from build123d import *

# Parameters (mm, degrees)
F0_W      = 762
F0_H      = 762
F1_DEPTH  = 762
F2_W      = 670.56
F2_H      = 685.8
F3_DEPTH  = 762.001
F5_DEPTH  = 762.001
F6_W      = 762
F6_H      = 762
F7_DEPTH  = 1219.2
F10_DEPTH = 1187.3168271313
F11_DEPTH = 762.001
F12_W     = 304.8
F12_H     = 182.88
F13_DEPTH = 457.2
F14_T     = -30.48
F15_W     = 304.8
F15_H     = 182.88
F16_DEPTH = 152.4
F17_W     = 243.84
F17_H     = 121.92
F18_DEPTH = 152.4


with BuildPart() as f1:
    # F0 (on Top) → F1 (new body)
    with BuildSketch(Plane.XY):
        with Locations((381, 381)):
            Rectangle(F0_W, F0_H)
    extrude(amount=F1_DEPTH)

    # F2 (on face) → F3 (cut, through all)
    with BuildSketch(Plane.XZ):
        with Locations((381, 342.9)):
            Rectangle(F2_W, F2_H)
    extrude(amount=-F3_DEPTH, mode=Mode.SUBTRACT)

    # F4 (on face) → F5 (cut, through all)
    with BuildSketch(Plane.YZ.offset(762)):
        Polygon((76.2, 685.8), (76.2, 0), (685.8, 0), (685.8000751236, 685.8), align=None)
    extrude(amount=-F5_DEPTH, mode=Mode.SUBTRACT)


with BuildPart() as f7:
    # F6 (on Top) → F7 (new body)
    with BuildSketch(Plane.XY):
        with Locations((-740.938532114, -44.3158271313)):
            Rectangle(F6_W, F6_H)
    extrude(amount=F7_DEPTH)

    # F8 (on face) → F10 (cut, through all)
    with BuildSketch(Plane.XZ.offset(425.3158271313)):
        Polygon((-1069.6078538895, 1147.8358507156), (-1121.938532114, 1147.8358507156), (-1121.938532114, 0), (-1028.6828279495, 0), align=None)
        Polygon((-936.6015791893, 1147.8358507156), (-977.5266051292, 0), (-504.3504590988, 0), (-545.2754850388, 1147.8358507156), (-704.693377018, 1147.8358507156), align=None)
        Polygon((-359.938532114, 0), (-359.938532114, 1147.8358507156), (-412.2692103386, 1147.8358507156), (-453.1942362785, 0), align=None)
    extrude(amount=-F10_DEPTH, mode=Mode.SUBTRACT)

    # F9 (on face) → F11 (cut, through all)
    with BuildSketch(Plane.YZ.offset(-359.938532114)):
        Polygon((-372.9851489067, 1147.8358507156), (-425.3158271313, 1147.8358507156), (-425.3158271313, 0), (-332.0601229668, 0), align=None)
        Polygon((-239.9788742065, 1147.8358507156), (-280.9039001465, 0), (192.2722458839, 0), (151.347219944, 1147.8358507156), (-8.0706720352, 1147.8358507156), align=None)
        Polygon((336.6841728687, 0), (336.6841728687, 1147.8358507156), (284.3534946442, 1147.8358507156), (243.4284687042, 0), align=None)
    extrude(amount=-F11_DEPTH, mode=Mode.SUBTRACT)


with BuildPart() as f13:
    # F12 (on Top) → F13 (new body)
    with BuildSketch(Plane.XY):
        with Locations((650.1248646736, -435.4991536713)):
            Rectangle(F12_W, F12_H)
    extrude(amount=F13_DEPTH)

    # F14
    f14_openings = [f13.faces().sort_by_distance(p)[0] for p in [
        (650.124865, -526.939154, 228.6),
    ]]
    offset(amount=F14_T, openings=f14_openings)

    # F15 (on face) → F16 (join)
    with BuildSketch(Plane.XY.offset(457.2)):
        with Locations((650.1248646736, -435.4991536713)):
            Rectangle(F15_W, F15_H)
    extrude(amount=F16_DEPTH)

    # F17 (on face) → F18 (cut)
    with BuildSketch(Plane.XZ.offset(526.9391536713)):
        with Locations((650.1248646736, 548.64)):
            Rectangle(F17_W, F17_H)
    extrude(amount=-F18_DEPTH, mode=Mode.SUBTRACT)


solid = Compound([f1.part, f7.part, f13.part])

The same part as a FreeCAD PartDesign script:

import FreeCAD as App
import Part
import Sketcher
from FreeCAD import Vector
Q = App.Units.Quantity


def faces_at(feature, points):
    """Names of the faces that lie closest to the given points."""
    faces = feature.Shape.Faces
    near = lambda p: min(range(len(faces)), key=lambda i: faces[i].distToShape(Part.Vertex(*p))[0])
    return sorted({f"Face{near(p) + 1}" for p in points})

doc = App.newDocument("Part")
body = doc.addObject("PartDesign::Body", "Body")

# Sketch on XY plane
sketch1 = doc.addObject("Sketcher::SketchObject", "Sketch")
body.addObject(sketch1)
sketch1.AttachmentSupport = (doc.XY_Plane, [""])
sketch1.MapMode = "FlatFace"
sketch1.addGeometry(Part.LineSegment(Vector(0, 762, 0), Vector(0, 0, 0)), False)
sketch1.addGeometry(Part.LineSegment(Vector(0, 0, 0), Vector(762, 0, 0)), False)
sketch1.addGeometry(Part.LineSegment(Vector(762, 0, 0), Vector(762, 762, 0)), False)
sketch1.addGeometry(Part.LineSegment(Vector(762, 762, 0), Vector(0, 762, 0)), False)
sketch1.addConstraint(Sketcher.Constraint("Coincident", 0, 2, 1, 1))
sketch1.addConstraint(Sketcher.Constraint("Coincident", 1, 2, 2, 1))
sketch1.addConstraint(Sketcher.Constraint("Coincident", 2, 2, 3, 1))
sketch1.addConstraint(Sketcher.Constraint("Coincident", 3, 2, 0, 1))
sketch1.addConstraint(Sketcher.Constraint("Vertical", 0))
sketch1.addConstraint(Sketcher.Constraint("Horizontal", 1))
sketch1.addConstraint(Sketcher.Constraint("Vertical", 2))
sketch1.addConstraint(Sketcher.Constraint("Horizontal", 3))
sketch1.addConstraint(Sketcher.Constraint("Coincident", 0, 2, -1, 1))
sketch1.addConstraint(Sketcher.Constraint("Equal", 3, 0))
sketch1.addConstraint(Sketcher.Constraint("DistanceX", 1, 1, 1, 2, Q("30 in")))
pad1 = doc.addObject("PartDesign::Pad", "Pad")
body.addObject(pad1)
pad1.Profile = sketch1
pad1.Length = Q("30 in")

# Sketch on XZ plane
sketch2 = doc.addObject("Sketcher::SketchObject", "Sketch001")
body.addObject(sketch2)
sketch2.AttachmentSupport = (doc.XZ_Plane, [""])
sketch2.MapMode = "FlatFace"
sketch2.addGeometry(Part.LineSegment(Vector(46, 686, 0), Vector(46, 0, 0)), False)
sketch2.addGeometry(Part.LineSegment(Vector(46, 0, 0), Vector(716, 0, 0)), False)
sketch2.addGeometry(Part.LineSegment(Vector(716, 0, 0), Vector(716, 686, 0)), False)
sketch2.addGeometry(Part.LineSegment(Vector(716, 686, 0), Vector(46, 686, 0)), False)
sketch2.addConstraint(Sketcher.Constraint("Coincident", 0, 2, 1, 1))
sketch2.addConstraint(Sketcher.Constraint("Coincident", 1, 2, 2, 1))
sketch2.addConstraint(Sketcher.Constraint("Coincident", 2, 2, 3, 1))
sketch2.addConstraint(Sketcher.Constraint("Coincident", 3, 2, 0, 1))
sketch2.addConstraint(Sketcher.Constraint("Vertical", 0))
sketch2.addConstraint(Sketcher.Constraint("Horizontal", 1))
sketch2.addConstraint(Sketcher.Constraint("Vertical", 2))
sketch2.addConstraint(Sketcher.Constraint("Horizontal", 3))
sketch2.addConstraint(Sketcher.Constraint("PointOnObject", 0, 2, -1))
sketch2.addConstraint(Sketcher.Constraint("DistanceY", 0, 2, 0, 1, Q("27 in")))
sketch2.addConstraint(Sketcher.Constraint("DistanceX", 1, 1, 1, 2, Q("26.4 in")))
sketch2.addConstraint(Sketcher.Constraint("DistanceX", -1, 1, 0, 2, Q("1.8 in")))
pocket1 = doc.addObject("PartDesign::Pocket", "Pocket")
body.addObject(pocket1)
pocket1.Profile = sketch2
pocket1.Type = "ThroughAll"

# Sketch on YZ plane
sketch3 = doc.addObject("Sketcher::SketchObject", "Sketch002")
body.addObject(sketch3)
sketch3.AttachmentSupport = (doc.YZ_Plane, [""])
sketch3.MapMode = "FlatFace"
sketch3.AttachmentOffset = App.Placement(Vector(0, 0, 30 * 25.4), App.Rotation())
sketch3.addGeometry(Part.LineSegment(Vector(76, 686, 0), Vector(76, 0, 0)), False)
sketch3.addGeometry(Part.LineSegment(Vector(76, 0, 0), Vector(686, 0, 0)), False)
sketch3.addGeometry(Part.LineSegment(Vector(686, 0, 0), Vector(686, 686, 0)), False)
sketch3.addGeometry(Part.LineSegment(Vector(686, 686, 0), Vector(76, 686, 0)), False)
sketch3.addConstraint(Sketcher.Constraint("Coincident", 0, 2, 1, 1))
sketch3.addConstraint(Sketcher.Constraint("Coincident", 1, 2, 2, 1))
sketch3.addConstraint(Sketcher.Constraint("Coincident", 2, 2, 3, 1))
sketch3.addConstraint(Sketcher.Constraint("Coincident", 3, 2, 0, 1))
sketch3.addConstraint(Sketcher.Constraint("Vertical", 0))
sketch3.addConstraint(Sketcher.Constraint("Horizontal", 1))
sketch3.addConstraint(Sketcher.Constraint("Horizontal", 3))
sketch3.addConstraint(Sketcher.Constraint("PointOnObject", 0, 2, -1))
sketch3.addConstraint(Sketcher.Constraint("DistanceX", 1, 1, 1, 2, Q("24 in")))
sketch3.addConstraint(Sketcher.Constraint("DistanceY", 0, 2, 0, 1, Q("27 in")))
sketch3.addConstraint(Sketcher.Constraint("DistanceX", -1, 1, 0, 2, Q("3 in")))
sketch3.addConstraint(Sketcher.Constraint("Angle", 2, Q("89.999994 deg")))
pocket2 = doc.addObject("PartDesign::Pocket", "Pocket001")
body.addObject(pocket2)
pocket2.Profile = sketch3
pocket2.Type = "ThroughAll"
body2 = doc.addObject("PartDesign::Body", "Body001")

# Sketch on XY plane
sketch4 = doc.addObject("Sketcher::SketchObject", "Sketch003")
body2.addObject(sketch4)
sketch4.AttachmentSupport = (doc.getObject("XY_Plane001"), [""])
sketch4.MapMode = "FlatFace"
sketch4.addGeometry(Part.LineSegment(Vector(-1122, 337, 0), Vector(-1122, -425, 0)), False)
sketch4.addGeometry(Part.LineSegment(Vector(-1122, -425, 0), Vector(-360, -425, 0)), False)
sketch4.addGeometry(Part.LineSegment(Vector(-360, -425, 0), Vector(-360, 337, 0)), False)
sketch4.addGeometry(Part.LineSegment(Vector(-360, 337, 0), Vector(-1122, 337, 0)), False)
sketch4.addConstraint(Sketcher.Constraint("Coincident", 0, 2, 1, 1))
sketch4.addConstraint(Sketcher.Constraint("Coincident", 1, 2, 2, 1))
sketch4.addConstraint(Sketcher.Constraint("Coincident", 2, 2, 3, 1))
sketch4.addConstraint(Sketcher.Constraint("Coincident", 3, 2, 0, 1))
sketch4.addConstraint(Sketcher.Constraint("Vertical", 0))
sketch4.addConstraint(Sketcher.Constraint("Horizontal", 1))
sketch4.addConstraint(Sketcher.Constraint("Vertical", 2))
sketch4.addConstraint(Sketcher.Constraint("Horizontal", 3))
sketch4.addConstraint(Sketcher.Constraint("Equal", 3, 0))
sketch4.addConstraint(Sketcher.Constraint("DistanceX", 1, 1, 1, 2, Q("30 in")))
sketch4.addConstraint(Sketcher.Constraint("DistanceX", 0, 2, -1, 1, 1121.938532))
sketch4.addConstraint(Sketcher.Constraint("DistanceY", 0, 2, -1, 1, 425.315827))
pad2 = doc.addObject("PartDesign::Pad", "Pad001")
body2.addObject(pad2)
pad2.Profile = sketch4
pad2.Length = Q("48 in")

# Sketch on XZ plane
sketch5 = doc.addObject("Sketcher::SketchObject", "Sketch004")
body2.addObject(sketch5)
sketch5.AttachmentSupport = (doc.getObject("XZ_Plane001"), [""])
sketch5.MapMode = "FlatFace"
sketch5.AttachmentOffset = App.Placement(Vector(0, 0, 425.315827), App.Rotation())
sketch5.addGeometry(Part.LineSegment(Vector(-1070, 1148, 0), Vector(-1122, 1148, 0)), False)
sketch5.addGeometry(Part.LineSegment(Vector(-1122, 1148, 0), Vector(-1122, 0, 0)), False)
sketch5.addGeometry(Part.LineSegment(Vector(-1122, 0, 0), Vector(-1029, 0, 0)), False)
sketch5.addGeometry(Part.LineSegment(Vector(-1029, 0, 0), Vector(-1070, 1148, 0)), False)
sketch5.addGeometry(Part.LineSegment(Vector(-937, 1148, 0), Vector(-978, 0, 0)), False)
sketch5.addGeometry(Part.LineSegment(Vector(-978, 0, 0), Vector(-504, 0, 0)), False)
sketch5.addGeometry(Part.LineSegment(Vector(-504, 0, 0), Vector(-545, 1148, 0)), False)
sketch5.addGeometry(Part.LineSegment(Vector(-545, 1148, 0), Vector(-937, 1148, 0)), False)
sketch5.addGeometry(Part.LineSegment(Vector(-360, 0, 0), Vector(-360, 1148, 0)), False)
sketch5.addGeometry(Part.LineSegment(Vector(-360, 1148, 0), Vector(-412, 1148, 0)), False)
sketch5.addGeometry(Part.LineSegment(Vector(-412, 1148, 0), Vector(-453, 0, 0)), False)
sketch5.addGeometry(Part.LineSegment(Vector(-453, 0, 0), Vector(-360, 0, 0)), False)
sketch5.addConstraint(Sketcher.Constraint("Coincident", 0, 2, 1, 1))
sketch5.addConstraint(Sketcher.Constraint("Coincident", 1, 2, 2, 1))
sketch5.addConstraint(Sketcher.Constraint("Coincident", 2, 2, 3, 1))
sketch5.addConstraint(Sketcher.Constraint("Coincident", 3, 2, 0, 1))
sketch5.addConstraint(Sketcher.Constraint("Coincident", 4, 2, 5, 1))
sketch5.addConstraint(Sketcher.Constraint("Coincident", 5, 2, 6, 1))
sketch5.addConstraint(Sketcher.Constraint("Coincident", 6, 2, 7, 1))
sketch5.addConstraint(Sketcher.Constraint("Coincident", 7, 2, 4, 1))
sketch5.addConstraint(Sketcher.Constraint("Coincident", 8, 2, 9, 1))
sketch5.addConstraint(Sketcher.Constraint("Coincident", 9, 2, 10, 1))
sketch5.addConstraint(Sketcher.Constraint("Coincident", 10, 2, 11, 1))
sketch5.addConstraint(Sketcher.Constraint("Coincident", 11, 2, 8, 1))
sketch5.addConstraint(Sketcher.Constraint("Horizontal", 0))
sketch5.addConstraint(Sketcher.Constraint("Vertical", 1))
sketch5.addConstraint(Sketcher.Constraint("Horizontal", 2))
sketch5.addConstraint(Sketcher.Constraint("Horizontal", 5))
sketch5.addConstraint(Sketcher.Constraint("Horizontal", 7))
sketch5.addConstraint(Sketcher.Constraint("Vertical", 8))
sketch5.addConstraint(Sketcher.Constraint("Horizontal", 9))
sketch5.addConstraint(Sketcher.Constraint("Horizontal", 11))
sketch5.addConstraint(Sketcher.Constraint("PointOnObject", 1, 2, -1))
sketch5.addConstraint(Sketcher.Constraint("PointOnObject", 4, 2, -1))
sketch5.addConstraint(Sketcher.Constraint("PointOnObject", 10, 2, -1))
sketch5.addConstraint(Sketcher.Constraint("Parallel", 3, 6))
sketch5.addConstraint(Sketcher.Constraint("Parallel", 4, 10))
sketch5.addConstraint(Sketcher.Constraint("Horizontal", 3, 2, 6, 2))
sketch5.addConstraint(Sketcher.Constraint("Horizontal", 7, 2, 8, 2))
sketch5.addConstraint(Sketcher.Constraint("Equal", 0, 9))
sketch5.addConstraint(Sketcher.Constraint("Equal", 2, 11))
sketch5.addConstraint(Sketcher.Constraint("DistanceX", 0, 2, 8, 2, Q("30 in")))
sketch5.addConstraint(Sketcher.Constraint("DistanceX", 0, 2, 0, 1, 52.330678))
sketch5.addConstraint(Sketcher.Constraint("DistanceY", 1, 2, 1, 1, 1147.835851))
sketch5.addConstraint(Sketcher.Constraint("Distance", 3, 1148.565191))
sketch5.addConstraint(Sketcher.Constraint("DistanceX", 5, 1, 5, 2, 473.176146))
sketch5.addConstraint(Sketcher.Constraint("DistanceX", 5, 2, -1, 1, 504.350459))
sketch5.addConstraint(Sketcher.Constraint("DistanceX", 9, 2, -1, 1, 412.26921))
pocket3 = doc.addObject("PartDesign::Pocket", "Pocket002")
body2.addObject(pocket3)
pocket3.Profile = sketch5
pocket3.Type = "ThroughAll"

# Sketch on YZ plane
sketch6 = doc.addObject("Sketcher::SketchObject", "Sketch005")
body2.addObject(sketch6)
sketch6.AttachmentSupport = (doc.getObject("YZ_Plane001"), [""])
sketch6.MapMode = "FlatFace"
sketch6.AttachmentOffset = App.Placement(Vector(0, 0, -359.938532), App.Rotation())
sketch6.addGeometry(Part.LineSegment(Vector(-373, 1148, 0), Vector(-425, 1148, 0)), False)
sketch6.addGeometry(Part.LineSegment(Vector(-425, 1148, 0), Vector(-425, 0, 0)), False)
sketch6.addGeometry(Part.LineSegment(Vector(-425, 0, 0), Vector(-332, 0, 0)), False)
sketch6.addGeometry(Part.LineSegment(Vector(-332, 0, 0), Vector(-373, 1148, 0)), False)
sketch6.addGeometry(Part.LineSegment(Vector(-240, 1148, 0), Vector(-281, 0, 0)), False)
sketch6.addGeometry(Part.LineSegment(Vector(-281, 0, 0), Vector(192, 0, 0)), False)
sketch6.addGeometry(Part.LineSegment(Vector(192, 0, 0), Vector(151, 1148, 0)), False)
sketch6.addGeometry(Part.LineSegment(Vector(151, 1148, 0), Vector(-240, 1148, 0)), False)
sketch6.addGeometry(Part.LineSegment(Vector(337, 0, 0), Vector(337, 1148, 0)), False)
sketch6.addGeometry(Part.LineSegment(Vector(337, 1148, 0), Vector(284, 1148, 0)), False)
sketch6.addGeometry(Part.LineSegment(Vector(284, 1148, 0), Vector(243, 0, 0)), False)
sketch6.addGeometry(Part.LineSegment(Vector(243, 0, 0), Vector(337, 0, 0)), False)
sketch6.addConstraint(Sketcher.Constraint("Coincident", 0, 2, 1, 1))
sketch6.addConstraint(Sketcher.Constraint("Coincident", 1, 2, 2, 1))
sketch6.addConstraint(Sketcher.Constraint("Coincident", 2, 2, 3, 1))
sketch6.addConstraint(Sketcher.Constraint("Coincident", 3, 2, 0, 1))
sketch6.addConstraint(Sketcher.Constraint("Coincident", 4, 2, 5, 1))
sketch6.addConstraint(Sketcher.Constraint("Coincident", 5, 2, 6, 1))
sketch6.addConstraint(Sketcher.Constraint("Coincident", 6, 2, 7, 1))
sketch6.addConstraint(Sketcher.Constraint("Coincident", 7, 2, 4, 1))
sketch6.addConstraint(Sketcher.Constraint("Coincident", 8, 2, 9, 1))
sketch6.addConstraint(Sketcher.Constraint("Coincident", 9, 2, 10, 1))
sketch6.addConstraint(Sketcher.Constraint("Coincident", 10, 2, 11, 1))
sketch6.addConstraint(Sketcher.Constraint("Coincident", 11, 2, 8, 1))
sketch6.addConstraint(Sketcher.Constraint("Horizontal", 0))
sketch6.addConstraint(Sketcher.Constraint("Vertical", 1))
sketch6.addConstraint(Sketcher.Constraint("Horizontal", 2))
sketch6.addConstraint(Sketcher.Constraint("Horizontal", 5))
sketch6.addConstraint(Sketcher.Constraint("Horizontal", 7))
sketch6.addConstraint(Sketcher.Constraint("Vertical", 8))
sketch6.addConstraint(Sketcher.Constraint("Horizontal", 9))
sketch6.addConstraint(Sketcher.Constraint("Horizontal", 11))
sketch6.addConstraint(Sketcher.Constraint("PointOnObject", 1, 2, -1))
sketch6.addConstraint(Sketcher.Constraint("PointOnObject", 4, 2, -1))
sketch6.addConstraint(Sketcher.Constraint("PointOnObject", 10, 2, -1))
sketch6.addConstraint(Sketcher.Constraint("Parallel", 3, 6))
sketch6.addConstraint(Sketcher.Constraint("Parallel", 4, 10))
sketch6.addConstraint(Sketcher.Constraint("Horizontal", 3, 2, 6, 2))
sketch6.addConstraint(Sketcher.Constraint("Horizontal", 7, 2, 8, 2))
sketch6.addConstraint(Sketcher.Constraint("Equal", 0, 9))
sketch6.addConstraint(Sketcher.Constraint("Equal", 2, 11))
sketch6.addConstraint(Sketcher.Constraint("DistanceX", 0, 2, 8, 2, Q("30 in")))
sketch6.addConstraint(Sketcher.Constraint("DistanceX", 0, 2, 0, 1, 52.330678))
sketch6.addConstraint(Sketcher.Constraint("DistanceY", 1, 2, 1, 1, 1147.835851))
sketch6.addConstraint(Sketcher.Constraint("DistanceX", 4, 2, -1, 1, 280.9039))
sketch6.addConstraint(Sketcher.Constraint("Distance", 3, 1148.565191))
sketch6.addConstraint(Sketcher.Constraint("DistanceX", 5, 1, 5, 2, 473.176146))
sketch6.addConstraint(Sketcher.Constraint("DistanceX", 3, 2, -1, 1, 372.985149))
pocket4 = doc.addObject("PartDesign::Pocket", "Pocket003")
body2.addObject(pocket4)
pocket4.Profile = sketch6
pocket4.Type = "ThroughAll"
body3 = doc.addObject("PartDesign::Body", "Body002")

# Sketch on XY plane
sketch7 = doc.addObject("Sketcher::SketchObject", "Sketch006")
body3.addObject(sketch7)
sketch7.AttachmentSupport = (doc.getObject("XY_Plane002"), [""])
sketch7.MapMode = "FlatFace"
sketch7.addGeometry(Part.LineSegment(Vector(498, -344, 0), Vector(498, -527, 0)), False)
sketch7.addGeometry(Part.LineSegment(Vector(498, -527, 0), Vector(803, -527, 0)), False)
sketch7.addGeometry(Part.LineSegment(Vector(803, -527, 0), Vector(803, -344, 0)), False)
sketch7.addGeometry(Part.LineSegment(Vector(803, -344, 0), Vector(498, -344, 0)), False)
sketch7.addConstraint(Sketcher.Constraint("Coincident", 0, 2, 1, 1))
sketch7.addConstraint(Sketcher.Constraint("Coincident", 1, 2, 2, 1))
sketch7.addConstraint(Sketcher.Constraint("Coincident", 2, 2, 3, 1))
sketch7.addConstraint(Sketcher.Constraint("Coincident", 3, 2, 0, 1))
sketch7.addConstraint(Sketcher.Constraint("Vertical", 0))
sketch7.addConstraint(Sketcher.Constraint("Horizontal", 1))
sketch7.addConstraint(Sketcher.Constraint("Vertical", 2))
sketch7.addConstraint(Sketcher.Constraint("Horizontal", 3))
sketch7.addConstraint(Sketcher.Constraint("DistanceX", 1, 1, 1, 2, Q("12 in")))
sketch7.addConstraint(Sketcher.Constraint("DistanceY", 0, 2, 0, 1, Q("7.2 in")))
sketch7.addConstraint(Sketcher.Constraint("DistanceX", -1, 1, 0, 2, 497.724865))
sketch7.addConstraint(Sketcher.Constraint("DistanceY", 0, 2, -1, 1, 526.939154))
pad3 = doc.addObject("PartDesign::Pad", "Pad002")
body3.addObject(pad3)
pad3.Profile = sketch7
pad3.Length = Q("18 in")
doc.recompute()

thickness = doc.addObject("PartDesign::Thickness", "Thickness")
body3.addObject(thickness)
thickness.Base = (pad3, faces_at(pad3, [(650.125, -526.939, 228.6)]))
thickness.Value = Q("1.2 in")
thickness.Reversed = True
thickness.Join = "Arc"

# Sketch on XY plane
sketch8 = doc.addObject("Sketcher::SketchObject", "Sketch007")
body3.addObject(sketch8)
sketch8.AttachmentSupport = (doc.getObject("XY_Plane002"), [""])
sketch8.MapMode = "FlatFace"
sketch8.AttachmentOffset = App.Placement(Vector(0, 0, 18 * 25.4), App.Rotation())
sketch8.addGeometry(Part.LineSegment(Vector(498, -344, 0), Vector(498, -527, 0)), False)
sketch8.addGeometry(Part.LineSegment(Vector(498, -527, 0), Vector(803, -527, 0)), False)
sketch8.addGeometry(Part.LineSegment(Vector(803, -527, 0), Vector(803, -344, 0)), False)
sketch8.addGeometry(Part.LineSegment(Vector(803, -344, 0), Vector(498, -344, 0)), False)
sketch8.addConstraint(Sketcher.Constraint("Coincident", 0, 2, 1, 1))
sketch8.addConstraint(Sketcher.Constraint("Coincident", 1, 2, 2, 1))
sketch8.addConstraint(Sketcher.Constraint("Coincident", 2, 2, 3, 1))
sketch8.addConstraint(Sketcher.Constraint("Coincident", 3, 2, 0, 1))
sketch8.addConstraint(Sketcher.Constraint("Vertical", 0))
sketch8.addConstraint(Sketcher.Constraint("Horizontal", 1))
sketch8.addConstraint(Sketcher.Constraint("Vertical", 2))
sketch8.addConstraint(Sketcher.Constraint("Horizontal", 3))
sketch8.addConstraint(Sketcher.Constraint("DistanceX", 1, 1, 1, 2, Q("12 in")))
sketch8.addConstraint(Sketcher.Constraint("DistanceY", 0, 2, 0, 1, Q("7.2 in")))
sketch8.addConstraint(Sketcher.Constraint("DistanceX", -1, 1, 0, 2, 497.724865))
sketch8.addConstraint(Sketcher.Constraint("DistanceY", 0, 2, -1, 1, 526.939154))
pad4 = doc.addObject("PartDesign::Pad", "Pad003")
body3.addObject(pad4)
pad4.Profile = sketch8
pad4.Length = Q("6 in")

# Sketch on XZ plane
sketch9 = doc.addObject("Sketcher::SketchObject", "Sketch008")
body3.addObject(sketch9)
sketch9.AttachmentSupport = (doc.getObject("XZ_Plane002"), [""])
sketch9.MapMode = "FlatFace"
sketch9.AttachmentOffset = App.Placement(Vector(0, 0, 526.939154), App.Rotation())
sketch9.addGeometry(Part.LineSegment(Vector(528, 610, 0), Vector(528, 488, 0)), False)
sketch9.addGeometry(Part.LineSegment(Vector(528, 488, 0), Vector(772, 488, 0)), False)
sketch9.addGeometry(Part.LineSegment(Vector(772, 488, 0), Vector(772, 610, 0)), False)
sketch9.addGeometry(Part.LineSegment(Vector(772, 610, 0), Vector(528, 610, 0)), False)
sketch9.addConstraint(Sketcher.Constraint("Coincident", 0, 2, 1, 1))
sketch9.addConstraint(Sketcher.Constraint("Coincident", 1, 2, 2, 1))
sketch9.addConstraint(Sketcher.Constraint("Coincident", 2, 2, 3, 1))
sketch9.addConstraint(Sketcher.Constraint("Coincident", 3, 2, 0, 1))
sketch9.addConstraint(Sketcher.Constraint("Vertical", 0))
sketch9.addConstraint(Sketcher.Constraint("Horizontal", 1))
sketch9.addConstraint(Sketcher.Constraint("Vertical", 2))
sketch9.addConstraint(Sketcher.Constraint("Horizontal", 3))
sketch9.addConstraint(Sketcher.Constraint("DistanceX", 1, 1, 1, 2, Q("9.6 in")))
sketch9.addConstraint(Sketcher.Constraint("DistanceY", 0, 2, 0, 1, Q("4.8 in")))
sketch9.addConstraint(Sketcher.Constraint("DistanceY", -1, 1, 2, 2, Q("24 in")))
sketch9.addConstraint(Sketcher.Constraint("DistanceX", -1, 1, 0, 2, 528.204865))
pocket5 = doc.addObject("PartDesign::Pocket", "Pocket004")
body3.addObject(pocket5)
pocket5.Profile = sketch9
pocket5.Length = Q("6 in")

doc.recompute()
